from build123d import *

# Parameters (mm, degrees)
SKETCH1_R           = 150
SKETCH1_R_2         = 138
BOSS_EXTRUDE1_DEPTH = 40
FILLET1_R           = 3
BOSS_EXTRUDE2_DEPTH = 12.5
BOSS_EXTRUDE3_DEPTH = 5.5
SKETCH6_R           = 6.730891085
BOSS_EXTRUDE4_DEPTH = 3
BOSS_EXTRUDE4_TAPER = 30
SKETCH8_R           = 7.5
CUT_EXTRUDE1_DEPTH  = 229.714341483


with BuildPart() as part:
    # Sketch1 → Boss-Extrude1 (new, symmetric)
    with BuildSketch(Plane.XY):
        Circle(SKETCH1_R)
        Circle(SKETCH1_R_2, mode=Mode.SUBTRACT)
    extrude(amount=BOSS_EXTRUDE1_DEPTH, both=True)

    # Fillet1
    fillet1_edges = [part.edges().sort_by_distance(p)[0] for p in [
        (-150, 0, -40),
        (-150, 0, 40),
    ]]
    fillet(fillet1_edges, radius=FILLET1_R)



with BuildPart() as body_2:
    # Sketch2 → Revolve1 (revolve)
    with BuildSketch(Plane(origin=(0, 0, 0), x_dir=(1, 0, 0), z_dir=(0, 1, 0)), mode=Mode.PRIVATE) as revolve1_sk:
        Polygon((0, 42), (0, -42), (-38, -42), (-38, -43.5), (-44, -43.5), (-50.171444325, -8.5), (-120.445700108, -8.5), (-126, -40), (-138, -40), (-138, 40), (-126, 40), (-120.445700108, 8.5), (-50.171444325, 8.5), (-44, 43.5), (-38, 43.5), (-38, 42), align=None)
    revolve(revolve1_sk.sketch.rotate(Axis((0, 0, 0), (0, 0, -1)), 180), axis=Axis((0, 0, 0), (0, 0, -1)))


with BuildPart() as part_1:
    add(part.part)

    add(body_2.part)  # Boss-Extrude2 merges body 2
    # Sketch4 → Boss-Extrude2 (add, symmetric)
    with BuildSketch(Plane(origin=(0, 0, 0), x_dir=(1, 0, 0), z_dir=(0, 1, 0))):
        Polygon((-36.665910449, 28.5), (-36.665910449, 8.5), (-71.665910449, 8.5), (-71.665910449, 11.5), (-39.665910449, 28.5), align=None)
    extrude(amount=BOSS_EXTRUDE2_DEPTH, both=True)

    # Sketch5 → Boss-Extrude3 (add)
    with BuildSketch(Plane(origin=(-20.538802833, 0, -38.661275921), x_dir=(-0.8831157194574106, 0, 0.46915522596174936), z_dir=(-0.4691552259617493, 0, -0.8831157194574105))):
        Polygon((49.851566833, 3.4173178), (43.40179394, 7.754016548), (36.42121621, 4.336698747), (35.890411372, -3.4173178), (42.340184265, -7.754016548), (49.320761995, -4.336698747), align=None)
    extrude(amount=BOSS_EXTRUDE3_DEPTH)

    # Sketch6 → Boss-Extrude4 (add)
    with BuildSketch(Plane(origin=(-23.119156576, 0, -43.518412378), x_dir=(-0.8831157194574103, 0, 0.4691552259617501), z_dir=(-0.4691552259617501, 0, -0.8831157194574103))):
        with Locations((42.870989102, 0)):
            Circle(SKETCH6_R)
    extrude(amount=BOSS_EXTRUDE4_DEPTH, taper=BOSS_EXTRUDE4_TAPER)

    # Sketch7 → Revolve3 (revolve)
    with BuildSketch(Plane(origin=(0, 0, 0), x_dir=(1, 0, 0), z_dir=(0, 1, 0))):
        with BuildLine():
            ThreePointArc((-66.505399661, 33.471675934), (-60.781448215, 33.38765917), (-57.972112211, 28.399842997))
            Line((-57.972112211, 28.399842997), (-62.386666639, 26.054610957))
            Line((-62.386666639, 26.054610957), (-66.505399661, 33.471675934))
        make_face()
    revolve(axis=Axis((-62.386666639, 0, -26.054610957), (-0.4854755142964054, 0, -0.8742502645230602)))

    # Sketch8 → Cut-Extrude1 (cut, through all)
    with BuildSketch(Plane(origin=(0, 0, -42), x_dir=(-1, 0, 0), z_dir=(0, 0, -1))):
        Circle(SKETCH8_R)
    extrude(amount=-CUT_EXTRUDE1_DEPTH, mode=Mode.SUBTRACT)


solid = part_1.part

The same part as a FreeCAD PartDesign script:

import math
import FreeCAD as App
import Part
import Sketcher
Q = App.Units.Quantity


def edges_at(feature, points):
    """Names of the edges that pass closest to the given points."""
    edges = feature.Shape.Edges
    near = lambda p: min(range(len(edges)), key=lambda i: edges[i].distToShape(Part.Vertex(*p))[0])
    return sorted({f"Edge{near(p) + 1}" for p in points})


def add_polygon(sketch, points):
    """Adds a closed chain of lines whose ends are joined by coincident constraints."""
    first, n = sketch.GeometryCount, len(points)
    for a, b in zip(points, points[1:] + points[:1]):
        sketch.addGeometry(Part.LineSegment(App.Vector(*a, 0), App.Vector(*b, 0)), False)
    for i in range(n):
        sketch.addConstraint(Sketcher.Constraint("Coincident", first + i, 2, first + (i + 1) % n, 1))

doc = App.newDocument("Part")
params = doc.addObject("Spreadsheet::Sheet", "Params")
for row, (alias, value) in enumerate([
    ("sketch1_diameter", "300 mm"),
    ("sketch1_diameter2", "276 mm"),
    ("pad1_length", "80 mm"),
    ("fillet_radius", "3 mm"),
    ("sketch2_width", "38 mm"),
    ("sketch2_width2", "6 mm"),
    ("sketch2_width3", "12 mm"),
    ("sketch2_height", "84 mm"),
    ("sketch2_height2", "80 mm"),
    ("revolution_angle", "360 deg"),
    ("sketch3_width", "3 mm"),
    ("sketch3_width2", "35 mm"),
    ("sketch3_height", "20 mm"),
    ("pad2_length", "25 mm"),
    ("pad3_length", "5.5 mm"),
    ("pad4_length", "3 mm"),
    ("pad4_taper", "-30 deg"),
    ("revolution2_angle", "360 deg"),
    ("sketch7_diameter", "15 mm"),
], start=1):
    params.set(f"A{row}", alias)
    params.set(f"B{row}", "=" + value)
    params.setAlias(f"B{row}", alias)

body = doc.addObject("PartDesign::Body", "Body")

sketch1 = body.newObject("Sketcher::SketchObject", "Sketch")
sketch1.AttachmentSupport = (doc.getObject("XY_Plane"), [""])
sketch1.MapMode = "FlatFace"
sketch1.addGeometry([
    Part.Circle(App.Vector(0, 0, 0), App.Vector(0, 0, 1), 150),
    Part.Circle(App.Vector(0, 0, 0), App.Vector(0, 0, 1), 138),
], False)
sketch1.addConstraint([
    Sketcher.Constraint("Coincident", 0, 3, -1, 1),
    Sketcher.Constraint("Coincident", 1, 3, -1, 1),
    Sketcher.Constraint("Diameter", 0, 300.0),
    Sketcher.Constraint("Diameter", 1, 276.0),
])
sketch1.setExpression("Constraints[2]", "Params.sketch1_diameter")
sketch1.setExpression("Constraints[3]", "Params.sketch1_diameter2")
pad1 = body.newObject("PartDesign::Pad", "Pad")
pad1.Profile = sketch1
pad1.setExpression("Length", "Params.pad1_length")
pad1.Midplane = True
doc.recompute()

fillet = body.newObject("PartDesign::Fillet", "Fillet")
fillet.Base = (pad1, edges_at(pad1, [(-150, 0, -40), (-150, 0, 40)]))
fillet.setExpression("Radius", "Params.fillet_radius")
body2 = doc.addObject("PartDesign::Body", "Body001")

sketch2 = body2.newObject("Sketcher::SketchObject", "Sketch001")
sketch2.AttachmentSupport = (doc.getObject("XZ_Plane001"), [""])
sketch2.MapMode = "FlatFace"
add_polygon(sketch2, [(0, 42), (0, -42), (-38, -42), (-38, -43.5), (-44, -43.5), (-50.2, -8.5), (-120.4, -8.5), (-126, -40), (-138, -40), (-138, 40), (-126, 40), (-120.4, 8.5), (-50.2, 8.5), (-44, 43.5), (-38, 43.5), (-38, 42)])
sketch2.addConstraint([
    Sketcher.Constraint("Vertical", 0),
    Sketcher.Constraint("Horizontal", 1),
    Sketcher.Constraint("Vertical", 2),
    Sketcher.Constraint("Horizontal", 3),
    Sketcher.Constraint("Horizontal", 5),
    Sketcher.Constraint("Horizontal", 7),
    Sketcher.Constraint("Vertical", 8),
    Sketcher.Constraint("Horizontal", 9),
    Sketcher.Constraint("Horizontal", 11),
    Sketcher.Constraint("Horizontal", 13),
    Sketcher.Constraint("Vertical", 14),
    Sketcher.Constraint("Horizontal", 15),
    Sketcher.Constraint("Symmetric", 0, 2, 15, 2, -1, 1),
    Sketcher.Constraint("Symmetric", 6, 2, 9, 2, -1),
    Sketcher.Constraint("Symmetric", 5, 2, 10, 2, -1),
    Sketcher.Constraint("Symmetric", 3, 2, 12, 2, -1),
    Sketcher.Constraint("Parallel", 4, 10),
    Sketcher.Constraint("Parallel", 6, 12),
    Sketcher.Constraint("Vertical", 2, 2, 13, 2),
    Sketcher.Constraint("DistanceX", 1, 2, 1, 1, 38.0),
    Sketcher.Constraint("DistanceX", 3, 2, 3, 1, 6.0),
    Sketcher.Constraint("DistanceX", 7, 2, 7, 1, 12.0),
    Sketcher.Constraint("DistanceY", 0, 2, 0, 1, 84.0),
    Sketcher.Constraint("DistanceY", 8, 1, 8, 2, 80.0),
    Sketcher.Constraint("Angle", 4, Q("100 deg")),
    Sketcher.Constraint("DistanceY", 2, 2, 2, 1, 1.5),
    Sketcher.Constraint("DistanceX", 6, 2, -1, 1, 126.0),
    Sketcher.Constraint("DistanceY", 3, 2, 4, 2, 35.0),
])
sketch2.setExpression("Constraints[35]", "Params.sketch2_width")
sketch2.setExpression("Constraints[36]", "Params.sketch2_width2")
sketch2.setExpression("Constraints[37]", "Params.sketch2_width3")
sketch2.setExpression("Constraints[38]", "Params.sketch2_height")
sketch2.setExpression("Constraints[39]", "Params.sketch2_height2")
revolution = body2.newObject("PartDesign::Revolution", "Revolution")
revolution.Profile = sketch2
revolution.ReferenceAxis = (sketch2, ["V_Axis"])
revolution.setExpression("Angle", "Params.revolution_angle")
doc.recompute()

boolean = body.newObject("PartDesign::Boolean", "Boolean")
boolean.Type = "Fuse"
boolean.addObjects([body2])

sketch3 = body.newObject("Sketcher::SketchObject", "Sketch002")
sketch3.AttachmentSupport = (doc.getObject("XZ_Plane"), [""])
sketch3.MapMode = "FlatFace"
add_polygon(sketch3, [(-36.7, -8.5), (-36.7, -28.5), (-39.7, -28.5), (-71.7, -11.5), (-71.7, -8.5)])
sketch3.addConstraint([
    Sketcher.Constraint("Vertical", 0),
    Sketcher.Constraint("Horizontal", 1),
    Sketcher.Constraint("Vertical", 3),
    Sketcher.Constraint("Horizontal", 4),
    Sketcher.Constraint("Equal", 1, 3),
    Sketcher.Constraint("DistanceX", 1, 2, 1, 1, 3.0),
    Sketcher.Constraint("DistanceX", 4, 1, 4, 2, 35.0),
    Sketcher.Constraint("DistanceY", 0, 2, 0, 1, 20.0),
    Sketcher.Constraint("DistanceY", 0, 2, -1, 1, 28.5),
    Sketcher.Constraint("DistanceX", 0, 2, -1, 1, 36.66591),
])
sketch3.setExpression("Constraints[10]", "Params.sketch3_width")
sketch3.setExpression("Constraints[11]", "Params.sketch3_width2")
sketch3.setExpression("Constraints[12]", "Params.sketch3_height")
pad2 = body.newObject("PartDesign::Pad", "Pad001")
pad2.Profile = sketch3
pad2.setExpression("Length", "Params.pad2_length")
pad2.Midplane = True

sketch4 = body.newObject("Sketcher::SketchObject", "Sketch003")
sketch4.Placement = App.Placement(App.Vector(-20.538803, 0, -38.661276), App.Rotation(App.Vector(-0.883115719, 0, 0.469155226), App.Vector(0, 0.999999999, 0), App.Vector(-0.469155226, 0, -0.883115719), "ZXY"))
add_polygon(sketch4, [(50, 3), (43, 8), (36, 4), (36, -3), (42, -8), (49, -4)])
sketch4.addConstraint([
    Sketcher.Constraint("Parallel", 0, 3),
    Sketcher.Constraint("Parallel", 1, 4),
    Sketcher.Constraint("Parallel", 2, 5),
    Sketcher.Constraint("Equal", 0, 1),
    Sketcher.Constraint("Equal", 1, 2),
    Sketcher.Constraint("Equal", 2, 3),
    Sketcher.Constraint("DistanceY", -1, 1, 1, 2, 4.336699),
    Sketcher.Constraint("DistanceY", 4, 2, -1, 1, 4.336699),
    Sketcher.Constraint("DistanceY", 3, 2, 2, 2, 4.336699),
    Sketcher.Constraint("DistanceX", -1, 1, 2, 2, 35.890411),
    Sketcher.Constraint("DistanceX", -1, 1, 4, 2, 49.320762),
    Sketcher.Constraint("DistanceX", 1, 2, 3, 2, 5.918968),
])
pad3 = body.newObject("PartDesign::Pad", "Pad002")
pad3.Profile = sketch4
pad3.setExpression("Length", "Params.pad3_length")

sketch5 = body.newObject("Sketcher::SketchObject", "Sketch004")
sketch5.Placement = App.Placement(App.Vector(-23.119157, 0, -43.518412), App.Rotation(App.Vector(-0.883115719, 0, 0.469155226), App.Vector(0, 0.999999999, 0), App.Vector(-0.469155226, 0, -0.883115719), "ZXY"))
sketch5.addGeometry(Part.Circle(App.Vector(43, 0, 0), App.Vector(0, 0, 1), 7), False)
sketch5.addConstraint([
    Sketcher.Constraint("PointOnObject", 0, 3, -1),
    Sketcher.Constraint("Diameter", 0, 13.461782),
    Sketcher.Constraint("DistanceX", -1, 1, 0, 3, 42.870989),
])
pad4 = body.newObject("PartDesign::Pad", "Pad003")
pad4.Profile = sketch5
pad4.setExpression("Length", "Params.pad4_length")
pad4.setExpression("TaperAngle", "Params.pad4_taper")

sketch6 = body.newObject("Sketcher::SketchObject", "Sketch005")
sketch6.AttachmentSupport = (doc.getObject("XZ_Plane"), [""])
sketch6.MapMode = "FlatFace"
sketch6.addGeometry([
    Part.ArcOfCircle(Part.Circle(App.Vector(-63.7, -28.4, 0), App.Vector(0, 0, 1), 5.7), math.radians(-119), math.radians(0)),
    Part.LineSegment(App.Vector(-66.5, -33.5, 0), App.Vector(-62.4, -26.1, 0)),
    Part.LineSegment(App.Vector(-62.4, -26.1, 0), App.Vector(-58, -28.4, 0)),
], False)
sketch6.addGeometry(Part.LineSegment(App.Vector(-62.3, -26, 0), App.Vector(-66.5, -33.5, 0)), True)
sketch6.addConstraint([
    Sketcher.Constraint("Coincident", 0, 1, 1, 1),
    Sketcher.Constraint("Coincident", 1, 2, 2, 1),
    Sketcher.Constraint("Coincident", 2, 2, 0, 2),
    Sketcher.Constraint("Coincident", 3, 2, 0, 1),
    Sketcher.Constraint("Parallel", 1, 3),
    Sketcher.Constraint("Radius", 0, 5.744626),
    Sketcher.Constraint("DistanceX", 0, 1, -1, 1, 66.5054),
    Sketcher.Constraint("Distance", 2, 4.99884),
    Sketcher.Constraint("DistanceY", 1, 2, -1, 1, 26.054611),
    Sketcher.Constraint("DistanceY", 0, 1, 0, 3, 5.022241),
    Sketcher.Constraint("DistanceY", 0, 3, 2, 2, 0.049592),
    Sketcher.Constraint("DistanceX", 1, 2, 3, 1, 0.045071),
    Sketcher.Constraint("DistanceX", 0, 3, 3, 1, 1.374928),
])
revolution2 = body.newObject("PartDesign::Revolution", "Revolution001")
revolution2.Profile = sketch6
revolution2.ReferenceAxis = (sketch6, ["Axis0"])
revolution2.setExpression("Angle", "Params.revolution2_angle")

sketch7 = body.newObject("Sketcher::SketchObject", "Sketch006")
sketch7.AttachmentSupport = (doc.getObject("XY_Plane"), [""])
sketch7.MapMode = "FlatFace"
sketch7.AttachmentOffset = App.Placement(App.Vector(0, 0, -42), App.Rotation())
sketch7.addGeometry(Part.Circle(App.Vector(0, 0, 0), App.Vector(0, 0, 1), 8), False)
sketch7.addConstraint([
    Sketcher.Constraint("Coincident", 0, 3, -1, 1),
    Sketcher.Constraint("Diameter", 0, 15.0),
])
sketch7.setExpression("Constraints[1]", "Params.sketch7_diameter")
pocket1 = body.newObject("PartDesign::Pocket", "Pocket")
pocket1.Profile = sketch7
pocket1.Type = "ThroughAll"
pocket1.Reversed = True

doc.recompute()
